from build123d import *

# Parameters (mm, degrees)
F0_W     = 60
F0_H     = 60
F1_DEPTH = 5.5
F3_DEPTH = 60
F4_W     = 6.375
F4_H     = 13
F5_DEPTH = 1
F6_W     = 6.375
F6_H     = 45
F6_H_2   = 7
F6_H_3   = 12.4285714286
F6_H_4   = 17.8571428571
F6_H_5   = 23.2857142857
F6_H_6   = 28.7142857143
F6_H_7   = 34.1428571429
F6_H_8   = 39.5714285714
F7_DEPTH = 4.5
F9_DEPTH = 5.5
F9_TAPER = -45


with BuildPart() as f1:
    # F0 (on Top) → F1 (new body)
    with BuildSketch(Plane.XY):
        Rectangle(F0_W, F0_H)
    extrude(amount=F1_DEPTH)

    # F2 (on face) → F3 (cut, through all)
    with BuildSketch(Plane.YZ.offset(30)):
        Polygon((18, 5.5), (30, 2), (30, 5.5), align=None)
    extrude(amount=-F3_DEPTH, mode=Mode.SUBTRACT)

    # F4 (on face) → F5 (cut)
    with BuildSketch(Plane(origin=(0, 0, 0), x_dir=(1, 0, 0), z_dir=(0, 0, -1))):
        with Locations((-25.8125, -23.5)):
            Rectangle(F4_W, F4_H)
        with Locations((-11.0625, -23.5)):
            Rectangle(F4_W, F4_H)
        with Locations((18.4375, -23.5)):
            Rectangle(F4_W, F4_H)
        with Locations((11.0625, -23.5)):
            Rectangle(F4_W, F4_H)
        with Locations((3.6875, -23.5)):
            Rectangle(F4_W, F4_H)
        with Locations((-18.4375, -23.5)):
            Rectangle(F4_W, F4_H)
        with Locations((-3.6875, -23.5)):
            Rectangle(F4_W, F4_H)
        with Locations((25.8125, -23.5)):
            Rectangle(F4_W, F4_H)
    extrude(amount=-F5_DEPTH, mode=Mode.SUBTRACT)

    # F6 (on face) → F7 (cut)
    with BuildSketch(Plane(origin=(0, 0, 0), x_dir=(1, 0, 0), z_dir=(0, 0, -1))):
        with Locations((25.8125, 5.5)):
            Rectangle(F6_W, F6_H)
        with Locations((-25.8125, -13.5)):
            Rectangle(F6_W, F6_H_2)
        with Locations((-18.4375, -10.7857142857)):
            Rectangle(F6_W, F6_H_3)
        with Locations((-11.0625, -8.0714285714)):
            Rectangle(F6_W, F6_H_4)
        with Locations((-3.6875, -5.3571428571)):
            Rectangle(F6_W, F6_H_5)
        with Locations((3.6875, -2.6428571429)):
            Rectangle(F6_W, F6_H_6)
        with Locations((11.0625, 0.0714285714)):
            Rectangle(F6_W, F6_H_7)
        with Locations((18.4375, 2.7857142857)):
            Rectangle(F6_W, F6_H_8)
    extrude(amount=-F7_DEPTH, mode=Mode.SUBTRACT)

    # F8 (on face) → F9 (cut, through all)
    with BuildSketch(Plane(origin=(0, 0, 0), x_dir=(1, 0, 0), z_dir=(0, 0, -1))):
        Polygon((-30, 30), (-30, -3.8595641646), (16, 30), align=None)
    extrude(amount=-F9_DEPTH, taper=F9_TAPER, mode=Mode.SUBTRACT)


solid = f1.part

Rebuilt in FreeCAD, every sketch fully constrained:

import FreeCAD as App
import Part
import Sketcher
from FreeCAD import Vector
Q = App.Units.Quantity

doc = App.newDocument("Part")
body = doc.addObject("PartDesign::Body", "Body")

sketch1 = doc.addObject("Sketcher::SketchObject", "Sketch")
body.addObject(sketch1)
sketch1.AttachmentSupport = (doc.XY_Plane, [""])
sketch1.MapMode = "FlatFace"
sketch1.addGeometry([
    Part.LineSegment(Vector(-30, 30, 0), Vector(-30, -30, 0)),
    Part.LineSegment(Vector(-30, -30, 0), Vector(30, -30, 0)),
    Part.LineSegment(Vector(30, -30, 0), Vector(30, 30, 0)),
    Part.LineSegment(Vector(30, 30, 0), Vector(-30, 30, 0)),
], False)
sketch1.addConstraint([
    Sketcher.Constraint("Coincident", 0, 2, 1, 1),
    Sketcher.Constraint("Coincident", 1, 2, 2, 1),
    Sketcher.Constraint("Coincident", 2, 2, 3, 1),
    Sketcher.Constraint("Coincident", 3, 2, 0, 1),
    Sketcher.Constraint("Vertical", 0),
    Sketcher.Constraint("Horizontal", 1),
    Sketcher.Constraint("Vertical", 2),
    Sketcher.Constraint("Horizontal", 3),
    Sketcher.Constraint("Symmetric", 0, 2, 2, 2, -1, 1),
    Sketcher.Constraint("Equal", 3, 0),
    Sketcher.Constraint("DistanceX", 1, 1, 1, 2, Q("60 mm")),
])
pad1 = doc.addObject("PartDesign::Pad", "Pad")
body.addObject(pad1)
pad1.Profile = sketch1
pad1.Length = 5.5

sketch2 = doc.addObject("Sketcher::SketchObject", "Sketch001")
body.addObject(sketch2)
sketch2.AttachmentSupport = (doc.YZ_Plane, [""])
sketch2.MapMode = "FlatFace"
sketch2.AttachmentOffset = App.Placement(Vector(0, 0, 30), App.Rotation())
sketch2.addGeometry([
    Part.LineSegment(Vector(18, 5.5, 0), Vector(30, 2, 0)),
    Part.LineSegment(Vector(30, 2, 0), Vector(30, 5.5, 0)),
    Part.LineSegment(Vector(30, 5.5, 0), Vector(18, 5.5, 0)),
], False)
sketch2.addConstraint([
    Sketcher.Constraint("Coincident", 0, 2, 1, 1),
    Sketcher.Constraint("Coincident", 1, 2, 2, 1),
    Sketcher.Constraint("Coincident", 2, 2, 0, 1),
    Sketcher.Constraint("Vertical", 1),
    Sketcher.Constraint("Horizontal", 2),
    Sketcher.Constraint("DistanceX", 2, 2, 2, 1, Q("12 mm")),
    Sketcher.Constraint("DistanceY", 1, 1, 1, 2, Q("3.5 mm")),
    Sketcher.Constraint("DistanceX", -1, 1, 0, 2, Q("30 mm")),
    Sketcher.Constraint("DistanceY", -1, 1, 0, 2, Q("2 mm")),
])
pocket1 = doc.addObject("PartDesign::Pocket", "Pocket")
body.addObject(pocket1)
pocket1.Profile = sketch2
pocket1.Type = "ThroughAll"

sketch3 = doc.addObject("Sketcher::SketchObject", "Sketch002")
body.addObject(sketch3)
sketch3.AttachmentSupport = (doc.XY_Plane, [""])
sketch3.MapMode = "FlatFace"
sketch3.addGeometry([
    Part.LineSegment(Vector(-29, 17, 0), Vector(-29, 30, 0)),
    Part.LineSegment(Vector(-29, 30, 0), Vector(-22.625, 30, 0)),
    Part.LineSegment(Vector(-22.625, 30, 0), Vector(-22.625, 17, 0)),
    Part.LineSegment(Vector(-22.625, 17, 0), Vector(-29, 17, 0)),
    Part.LineSegment(Vector(-14.25, 17, 0), Vector(-14.25, 30, 0)),
    Part.LineSegment(Vector(-14.25, 30, 0), Vector(-7.875, 30, 0)),
    Part.LineSegment(Vector(-7.875, 30, 0), Vector(-7.875, 17, 0)),
    Part.LineSegment(Vector(-7.875, 17, 0), Vector(-14.25, 17, 0)),
    Part.LineSegment(Vector(15.25, 17, 0), Vector(15.25, 30, 0)),
    Part.LineSegment(Vector(15.25, 30, 0), Vector(21.625, 30, 0)),
    Part.LineSegment(Vector(21.625, 30, 0), Vector(21.625, 17, 0)),
    Part.LineSegment(Vector(21.625, 17, 0), Vector(15.25, 17, 0)),
    Part.LineSegment(Vector(7.875, 17, 0), Vector(7.875, 30, 0)),
    Part.LineSegment(Vector(7.875, 30, 0), Vector(14.25, 30, 0)),
    Part.LineSegment(Vector(14.25, 30, 0), Vector(14.25, 17, 0)),
    Part.LineSegment(Vector(14.25, 17, 0), Vector(7.875, 17, 0)),
    Part.LineSegment(Vector(0.5, 17, 0), Vector(0.5, 30, 0)),
    Part.LineSegment(Vector(0.5, 30, 0), Vector(6.875, 30, 0)),
    Part.LineSegment(Vector(6.875, 30, 0), Vector(6.875, 17, 0)),
    Part.LineSegment(Vector(6.875, 17, 0), Vector(0.5, 17, 0)),
    Part.LineSegment(Vector(-21.625, 17, 0), Vector(-21.625, 30, 0)),
    Part.LineSegment(Vector(-21.625, 30, 0), Vector(-15.25, 30, 0)),
    Part.LineSegment(Vector(-15.25, 30, 0), Vector(-15.25, 17, 0)),
    Part.LineSegment(Vector(-15.25, 17, 0), Vector(-21.625, 17, 0)),
    Part.LineSegment(Vector(-6.875, 17, 0), Vector(-6.875, 30, 0)),
    Part.LineSegment(Vector(-6.875, 30, 0), Vector(-0.5, 30, 0)),
    Part.LineSegment(Vector(-0.5, 30, 0), Vector(-0.5, 17, 0)),
    Part.LineSegment(Vector(-0.5, 17, 0), Vector(-6.875, 17, 0)),
    Part.LineSegment(Vector(22.625, 17, 0), Vector(22.625, 30, 0)),
    Part.LineSegment(Vector(22.625, 30, 0), Vector(29, 30, 0)),
    Part.LineSegment(Vector(29, 30, 0), Vector(29, 17, 0)),
    Part.LineSegment(Vector(29, 17, 0), Vector(22.625, 17, 0)),
], False)
sketch3.addConstraint([
    Sketcher.Constraint("Coincident", 0, 2, 1, 1),
    Sketcher.Constraint("Coincident", 1, 2, 2, 1),
    Sketcher.Constraint("Coincident", 2, 2, 3, 1),
    Sketcher.Constraint("Coincident", 3, 2, 0, 1),
    Sketcher.Constraint("Coincident", 4, 2, 5, 1),
    Sketcher.Constraint("Coincident", 5, 2, 6, 1),
    Sketcher.Constraint("Coincident", 6, 2, 7, 1),
    Sketcher.Constraint("Coincident", 7, 2, 4, 1),
    Sketcher.Constraint("Coincident", 8, 2, 9, 1),
    Sketcher.Constraint("Coincident", 9, 2, 10, 1),
    Sketcher.Constraint("Coincident", 10, 2, 11, 1),
    Sketcher.Constraint("Coincident", 11, 2, 8, 1),
    Sketcher.Constraint("Coincident", 12, 2, 13, 1),
    Sketcher.Constraint("Coincident", 13, 2, 14, 1),
    Sketcher.Constraint("Coincident", 14, 2, 15, 1),
    Sketcher.Constraint("Coincident", 15, 2, 12, 1),
    Sketcher.Constraint("Coincident", 16, 2, 17, 1),
    Sketcher.Constraint("Coincident", 17, 2, 18, 1),
    Sketcher.Constraint("Coincident", 18, 2, 19, 1),
    Sketcher.Constraint("Coincident", 19, 2, 16, 1),
    Sketcher.Constraint("Coincident", 20, 2, 21, 1),
    Sketcher.Constraint("Coincident", 21, 2, 22, 1),
    Sketcher.Constraint("Coincident", 22, 2, 23, 1),
    Sketcher.Constraint("Coincident", 23, 2, 20, 1),
    Sketcher.Constraint("Coincident", 24, 2, 25, 1),
    Sketcher.Constraint("Coincident", 25, 2, 26, 1),
    Sketcher.Constraint("Coincident", 26, 2, 27, 1),
    Sketcher.Constraint("Coincident", 27, 2, 24, 1),
    Sketcher.Constraint("Coincident", 28, 2, 29, 1),
    Sketcher.Constraint("Coincident", 29, 2, 30, 1),
    Sketcher.Constraint("Coincident", 30, 2, 31, 1),
    Sketcher.Constraint("Coincident", 31, 2, 28, 1),
    Sketcher.Constraint("Vertical", 0),
    Sketcher.Constraint("Horizontal", 1),
    Sketcher.Constraint("Vertical", 2),
    Sketcher.Constraint("Horizontal", 3),
    Sketcher.Constraint("Vertical", 4),
    Sketcher.Constraint("Horizontal", 5),
    Sketcher.Constraint("Vertical", 6),
    Sketcher.Constraint("Horizontal", 7),
    Sketcher.Constraint("Vertical", 8),
    Sketcher.Constraint("Horizontal", 9),
    Sketcher.Constraint("Vertical", 10),
    Sketcher.Constraint("Horizontal", 11),
    Sketcher.Constraint("Vertical", 12),
    Sketcher.Constraint("Horizontal", 13),
    Sketcher.Constraint("Vertical", 14),
    Sketcher.Constraint("Horizontal", 15),
    Sketcher.Constraint("Vertical", 16),
    Sketcher.Constraint("Horizontal", 17),
    Sketcher.Constraint("Vertical", 18),
    Sketcher.Constraint("Horizontal", 19),
    Sketcher.Constraint("Vertical", 20),
    Sketcher.Constraint("Horizontal", 21),
    Sketcher.Constraint("Vertical", 22),
    Sketcher.Constraint("Horizontal", 23),
    Sketcher.Constraint("Vertical", 24),
    Sketcher.Constraint("Horizontal", 25),
    Sketcher.Constraint("Vertical", 26),
    Sketcher.Constraint("Horizontal", 27),
    Sketcher.Constraint("Vertical", 28),
    Sketcher.Constraint("Horizontal", 29),
    Sketcher.Constraint("Vertical", 30),
    Sketcher.Constraint("Horizontal", 31),
    Sketcher.Constraint("Symmetric", 5, 2, 12, 2, -2),
    Sketcher.Constraint("Symmetric", 7, 2, 14, 2, -2),
    Sketcher.Constraint("Symmetric", 9, 2, 20, 2, -2),
    Sketcher.Constraint("Symmetric", 11, 2, 22, 2, -2),
    Sketcher.Constraint("Symmetric", 17, 2, 24, 2, -2),
    Sketcher.Constraint("Symmetric", 19, 2, 26, 2, -2),
    Sketcher.Constraint("Symmetric", 1, 2, 28, 2, -2),
    Sketcher.Constraint("Symmetric", 3, 2, 30, 2, -2),
    Sketcher.Constraint("Horizontal", 1, 2, 4, 2),
    Sketcher.Constraint("Horizontal", 3, 2, 6, 2),
    Sketcher.Constraint("Horizontal", 5, 2, 8, 2),
    Sketcher.Constraint("Horizontal", 7, 2, 10, 2),
    Sketcher.Constraint("Horizontal", 13, 2, 16, 2),
    Sketcher.Constraint("Horizontal", 15, 2, 18, 2),
    Sketcher.Constraint("Equal", 3, 5),
    Sketcher.Constraint("Equal", 7, 9),
    Sketcher.Constraint("Equal", 15, 17),
    Sketcher.Constraint("DistanceY", 0, 1, 0, 2, Q("13 mm")),
    Sketcher.Constraint("DistanceX", 0, 2, -1, 1, Q("29 mm")),
    Sketcher.Constraint("DistanceY", -1, 1, 0, 2, Q("30 mm")),
    Sketcher.Constraint("DistanceX", 13, 2, 8, 2, Q("1 mm")),
    Sketcher.Constraint("DistanceX", 17, 2, 12, 2, Q("1 mm")),
    Sketcher.Constraint("DistanceX", 1, 2, 20, 2, Q("1 mm")),
    Sketcher.Constraint("DistanceX", 25, 2, 16, 2, Q("1 mm")),
])
pocket2 = doc.addObject("PartDesign::Pocket", "Pocket001")
body.addObject(pocket2)
pocket2.Profile = sketch3
pocket2.Length = 1
pocket2.Reversed = True

sketch4 = doc.addObject("Sketcher::SketchObject", "Sketch003")
body.addObject(sketch4)
sketch4.AttachmentSupport = (doc.XY_Plane, [""])
sketch4.MapMode = "FlatFace"
sketch4.addGeometry([
    Part.LineSegment(Vector(22.625, -28, 0), Vector(22.625, 17, 0)),
    Part.LineSegment(Vector(22.625, 17, 0), Vector(29, 17, 0)),
    Part.LineSegment(Vector(29, 17, 0), Vector(29, -28, 0)),
    Part.LineSegment(Vector(29, -28, 0), Vector(22.625, -28, 0)),
    Part.LineSegment(Vector(-29, 10, 0), Vector(-29, 17, 0)),
    Part.LineSegment(Vector(-29, 17, 0), Vector(-22.625, 17, 0)),
    Part.LineSegment(Vector(-22.625, 17, 0), Vector(-22.625, 10, 0)),
    Part.LineSegment(Vector(-22.625, 10, 0), Vector(-29, 10, 0)),
    Part.LineSegment(Vector(-21.625, 4.571429, 0), Vector(-21.625, 17, 0)),
    Part.LineSegment(Vector(-21.625, 17, 0), Vector(-15.25, 17, 0)),
    Part.LineSegment(Vector(-15.25, 17, 0), Vector(-15.25, 4.571429, 0)),
    Part.LineSegment(Vector(-15.25, 4.571429, 0), Vector(-21.625, 4.571429, 0)),
    Part.LineSegment(Vector(-14.25, -0.857143, 0), Vector(-14.25, 17, 0)),
    Part.LineSegment(Vector(-14.25, 17, 0), Vector(-7.875, 17, 0)),
    Part.LineSegment(Vector(-7.875, 17, 0), Vector(-7.875, -0.857143, 0)),
    Part.LineSegment(Vector(-7.875, -0.857143, 0), Vector(-14.25, -0.857143, 0)),
    Part.LineSegment(Vector(-6.875, -6.285714, 0), Vector(-6.875, 17, 0)),
    Part.LineSegment(Vector(-6.875, 17, 0), Vector(-0.5, 17, 0)),
    Part.LineSegment(Vector(-0.5, 17, 0), Vector(-0.5, -6.285714, 0)),
    Part.LineSegment(Vector(-0.5, -6.285714, 0), Vector(-6.875, -6.285714, 0)),
    Part.LineSegment(Vector(0.5, -11.714286, 0), Vector(0.5, 17, 0)),
    Part.LineSegment(Vector(0.5, 17, 0), Vector(6.875, 17, 0)),
    Part.LineSegment(Vector(6.875, 17, 0), Vector(6.875, -11.714286, 0)),
    Part.LineSegment(Vector(6.875, -11.714286, 0), Vector(0.5, -11.714286, 0)),
    Part.LineSegment(Vector(7.875, -17.142857, 0), Vector(7.875, 17, 0)),
    Part.LineSegment(Vector(7.875, 17, 0), Vector(14.25, 17, 0)),
    Part.LineSegment(Vector(14.25, 17, 0), Vector(14.25, -17.142857, 0)),
    Part.LineSegment(Vector(14.25, -17.142857, 0), Vector(7.875, -17.142857, 0)),
    Part.LineSegment(Vector(15.25, -22.571429, 0), Vector(15.25, 17, 0)),
    Part.LineSegment(Vector(15.25, 17, 0), Vector(21.625, 17, 0)),
    Part.LineSegment(Vector(21.625, 17, 0), Vector(21.625, -22.571429, 0)),
    Part.LineSegment(Vector(21.625, -22.571429, 0), Vector(15.25, -22.571429, 0)),
], False)
sketch4.addConstraint([
    Sketcher.Constraint("Coincident", 0, 2, 1, 1),
    Sketcher.Constraint("Coincident", 1, 2, 2, 1),
    Sketcher.Constraint("Coincident", 2, 2, 3, 1),
    Sketcher.Constraint("Coincident", 3, 2, 0, 1),
    Sketcher.Constraint("Coincident", 4, 2, 5, 1),
    Sketcher.Constraint("Coincident", 5, 2, 6, 1),
    Sketcher.Constraint("Coincident", 6, 2, 7, 1),
    Sketcher.Constraint("Coincident", 7, 2, 4, 1),
    Sketcher.Constraint("Coincident", 8, 2, 9, 1),
    Sketcher.Constraint("Coincident", 9, 2, 10, 1),
    Sketcher.Constraint("Coincident", 10, 2, 11, 1),
    Sketcher.Constraint("Coincident", 11, 2, 8, 1),
    Sketcher.Constraint("Coincident", 12, 2, 13, 1),
    Sketcher.Constraint("Coincident", 13, 2, 14, 1),
    Sketcher.Constraint("Coincident", 14, 2, 15, 1),
    Sketcher.Constraint("Coincident", 15, 2, 12, 1),
    Sketcher.Constraint("Coincident", 16, 2, 17, 1),
    Sketcher.Constraint("Coincident", 17, 2, 18, 1),
    Sketcher.Constraint("Coincident", 18, 2, 19, 1),
    Sketcher.Constraint("Coincident", 19, 2, 16, 1),
    Sketcher.Constraint("Coincident", 20, 2, 21, 1),
    Sketcher.Constraint("Coincident", 21, 2, 22, 1),
    Sketcher.Constraint("Coincident", 22, 2, 23, 1),
    Sketcher.Constraint("Coincident", 23, 2, 20, 1),
    Sketcher.Constraint("Coincident", 24, 2, 25, 1),
    Sketcher.Constraint("Coincident", 25, 2, 26, 1),
    Sketcher.Constraint("Coincident", 26, 2, 27, 1),
    Sketcher.Constraint("Coincident", 27, 2, 24, 1),
    Sketcher.Constraint("Coincident", 28, 2, 29, 1),
    Sketcher.Constraint("Coincident", 29, 2, 30, 1),
    Sketcher.Constraint("Coincident", 30, 2, 31, 1),
    Sketcher.Constraint("Coincident", 31, 2, 28, 1),
    Sketcher.Constraint("Vertical", 0),
    Sketcher.Constraint("Horizontal", 1),
    Sketcher.Constraint("Vertical", 2),
    Sketcher.Constraint("Horizontal", 3),
    Sketcher.Constraint("Vertical", 4),
    Sketcher.Constraint("Horizontal", 5),
    Sketcher.Constraint("Vertical", 6),
    Sketcher.Constraint("Horizontal", 7),
    Sketcher.Constraint("Vertical", 8),
    Sketcher.Constraint("Horizontal", 9),
    Sketcher.Constraint("Vertical", 10),
    Sketcher.Constraint("Horizontal", 11),
    Sketcher.Constraint("Vertical", 12),
    Sketcher.Constraint("Horizontal", 13),
    Sketcher.Constraint("Vertical", 14),
    Sketcher.Constraint("Horizontal", 15),
    Sketcher.Constraint("Vertical", 16),
    Sketcher.Constraint("Horizontal", 17),
    Sketcher.Constraint("Vertical", 18),
    Sketcher.Constraint("Horizontal", 19),
    Sketcher.Constraint("Vertical", 20),
    Sketcher.Constraint("Horizontal", 21),
    Sketcher.Constraint("Vertical", 22),
    Sketcher.Constraint("Horizontal", 23),
    Sketcher.Constraint("Vertical", 24),
    Sketcher.Constraint("Horizontal", 25),
    Sketcher.Constraint("Vertical", 26),
    Sketcher.Constraint("Horizontal", 27),
    Sketcher.Constraint("Vertical", 28),
    Sketcher.Constraint("Horizontal", 29),
    Sketcher.Constraint("Vertical", 30),
    Sketcher.Constraint("Horizontal", 31),
    Sketcher.Constraint("Symmetric", 1, 2, 4, 2, -2),
    Sketcher.Constraint("Symmetric", 17, 2, 20, 2, -2),
    Sketcher.Constraint("Symmetric", 13, 2, 24, 2, -2),
    Sketcher.Constraint("Symmetric", 9, 2, 28, 2, -2),
    Sketcher.Constraint("Horizontal", 5, 2, 8, 2),
    Sketcher.Constraint("Horizontal", 9, 2, 12, 2),
    Sketcher.Constraint("Horizontal", 13, 2, 16, 2),
    Sketcher.Constraint("Equal", 3, 5),
    Sketcher.Constraint("Equal", 7, 9),
    Sketcher.Constraint("Equal", 11, 13),
    Sketcher.Constraint("Equal", 15, 17),
    Sketcher.Constraint("Equal", 19, 21),
    Sketcher.Constraint("Equal", 23, 25),
    Sketcher.Constraint("Equal", 27, 29),
    Sketcher.Constraint("DistanceY", 0, 1, 0, 2, Q("45 mm")),
    Sketcher.Constraint("DistanceY", 4, 1, 4, 2, Q("7 mm")),
    Sketcher.Constraint("DistanceY", -1, 1, 0, 2, Q("17 mm")),
    Sketcher.Constraint("DistanceX", -1, 1, 1, 2, Q("29 mm")),
    Sketcher.Constraint("DistanceX", 5, 2, 8, 2, Q("1 mm")),
    Sketcher.Constraint("DistanceX", 9, 2, 12, 2, Q("1 mm")),
    Sketcher.Constraint("DistanceX", 13, 2, 16, 2, Q("1 mm")),
    Sketcher.Constraint("DistanceX", 17, 2, 20, 2, Q("1 mm")),
    Sketcher.Constraint("DistanceY", 8, 1, 8, 2, Q("12.428571 mm")),
    Sketcher.Constraint("DistanceY", 28, 1, 28, 2, Q("39.571429 mm")),
    Sketcher.Constraint("DistanceY", 12, 1, 12, 2, Q("17.857143 mm")),
    Sketcher.Constraint("DistanceY", 16, 1, 16, 2, Q("23.285714 mm")),
    Sketcher.Constraint("DistanceY", 20, 1, 20, 2, Q("28.714286 mm")),
    Sketcher.Constraint("DistanceY", 24, 1, 24, 2, Q("34.142857 mm")),
])
pocket3 = doc.addObject("PartDesign::Pocket", "Pocket002")
body.addObject(pocket3)
pocket3.Profile = sketch4
pocket3.Length = 4.5
pocket3.Reversed = True

sketch5 = doc.addObject("Sketcher::SketchObject", "Sketch004")
body.addObject(sketch5)
sketch5.AttachmentSupport = (doc.XY_Plane, [""])
sketch5.MapMode = "FlatFace"
sketch5.addGeometry([
    Part.LineSegment(Vector(-30, -30, 0), Vector(-30, 4, 0)),
    Part.LineSegment(Vector(-30, 4, 0), Vector(16, -30, 0)),
    Part.LineSegment(Vector(16, -30, 0), Vector(-30, -30, 0)),
], False)
sketch5.addConstraint([
    Sketcher.Constraint("Coincident", 0, 2, 1, 1),
    Sketcher.Constraint("Coincident", 1, 2, 2, 1),
    Sketcher.Constraint("Coincident", 2, 2, 0, 1),
    Sketcher.Constraint("Vertical", 0),
    Sketcher.Constraint("Horizontal", 2),
    Sketcher.Constraint("DistanceX", 2, 2, 2, 1, Q("46 mm")),
    Sketcher.Constraint("DistanceX", 0, 2, -1, 1, Q("30 mm")),
    Sketcher.Constraint("DistanceY", 1, 2, -1, 1, Q("30 mm")),
    Sketcher.Constraint("DistanceY", 0, 1, 0, 2, Q("33.859564 mm")),
])
pocket4 = doc.addObject("PartDesign::Pocket", "Pocket003")
body.addObject(pocket4)
pocket4.Profile = sketch5
pocket4.Length = 5.5
pocket4.Reversed = True
pocket4.TaperAngle = 45

doc.recompute()
